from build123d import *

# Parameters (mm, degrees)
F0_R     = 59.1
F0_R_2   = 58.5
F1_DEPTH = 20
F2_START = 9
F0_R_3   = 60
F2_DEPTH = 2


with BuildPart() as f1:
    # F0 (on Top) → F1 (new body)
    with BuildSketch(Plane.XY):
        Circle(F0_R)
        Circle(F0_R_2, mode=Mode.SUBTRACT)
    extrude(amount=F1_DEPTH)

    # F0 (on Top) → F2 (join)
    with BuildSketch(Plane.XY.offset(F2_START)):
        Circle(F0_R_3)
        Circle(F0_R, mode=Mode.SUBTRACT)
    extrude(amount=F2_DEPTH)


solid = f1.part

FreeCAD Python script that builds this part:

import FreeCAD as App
import Part
import Sketcher
Q = App.Units.Quantity

doc = App.newDocument("Part")
body = doc.addObject("PartDesign::Body", "Body")

# Sketch on XY plane
sketch1 = doc.addObject("Sketcher::SketchObject", "Sketch")
body.addObject(sketch1)
sketch1.AttachmentSupport = (doc.XY_Plane, [""])
sketch1.MapMode = "FlatFace"
sketch1.addGeometry([
    Part.Circle(App.Vector(0, 0, 0), App.Vector(0, 0, 1), 59),
    Part.Circle(App.Vector(0, 0, 0), App.Vector(0, 0, 1), 58),
], False)
sketch1.addConstraint([
    Sketcher.Constraint("Coincident", 0, 3, -1, 1),
    Sketcher.Constraint("Coincident", 1, 3, -1, 1),
    Sketcher.Constraint("Diameter", 1, Q("117 mm")),
    Sketcher.Constraint("Diameter", 0, Q("118.2 mm")),
])
pad1 = doc.addObject("PartDesign::Pad", "Pad")
body.addObject(pad1)
pad1.Profile = sketch1
pad1.Length = 20

# Sketch on XY plane
sketch2 = doc.addObject("Sketcher::SketchObject", "Sketch001")
body.addObject(sketch2)
sketch2.AttachmentSupport = (doc.XY_Plane, [""])
sketch2.MapMode = "FlatFace"
sketch2.AttachmentOffset = App.Placement(App.Vector(0, 0, 9), App.Rotation())
sketch2.addGeometry([
    Part.Circle(App.Vector(0, 0, 0), App.Vector(0, 0, 1), 60),
    Part.Circle(App.Vector(0, 0, 0), App.Vector(0, 0, 1), 59),
], False)
sketch2.addConstraint([
    Sketcher.Constraint("Coincident", 0, 3, -1, 1),
    Sketcher.Constraint("Coincident", 1, 3, -1, 1),
    Sketcher.Constraint("Diameter", 0, Q("120 mm")),
    Sketcher.Constraint("Diameter", 1, Q("118.2 mm")),
])
pad2 = doc.addObject("PartDesign::Pad", "Pad001")
body.addObject(pad2)
pad2.Profile = sketch2
pad2.Length = 2

doc.recompute()
